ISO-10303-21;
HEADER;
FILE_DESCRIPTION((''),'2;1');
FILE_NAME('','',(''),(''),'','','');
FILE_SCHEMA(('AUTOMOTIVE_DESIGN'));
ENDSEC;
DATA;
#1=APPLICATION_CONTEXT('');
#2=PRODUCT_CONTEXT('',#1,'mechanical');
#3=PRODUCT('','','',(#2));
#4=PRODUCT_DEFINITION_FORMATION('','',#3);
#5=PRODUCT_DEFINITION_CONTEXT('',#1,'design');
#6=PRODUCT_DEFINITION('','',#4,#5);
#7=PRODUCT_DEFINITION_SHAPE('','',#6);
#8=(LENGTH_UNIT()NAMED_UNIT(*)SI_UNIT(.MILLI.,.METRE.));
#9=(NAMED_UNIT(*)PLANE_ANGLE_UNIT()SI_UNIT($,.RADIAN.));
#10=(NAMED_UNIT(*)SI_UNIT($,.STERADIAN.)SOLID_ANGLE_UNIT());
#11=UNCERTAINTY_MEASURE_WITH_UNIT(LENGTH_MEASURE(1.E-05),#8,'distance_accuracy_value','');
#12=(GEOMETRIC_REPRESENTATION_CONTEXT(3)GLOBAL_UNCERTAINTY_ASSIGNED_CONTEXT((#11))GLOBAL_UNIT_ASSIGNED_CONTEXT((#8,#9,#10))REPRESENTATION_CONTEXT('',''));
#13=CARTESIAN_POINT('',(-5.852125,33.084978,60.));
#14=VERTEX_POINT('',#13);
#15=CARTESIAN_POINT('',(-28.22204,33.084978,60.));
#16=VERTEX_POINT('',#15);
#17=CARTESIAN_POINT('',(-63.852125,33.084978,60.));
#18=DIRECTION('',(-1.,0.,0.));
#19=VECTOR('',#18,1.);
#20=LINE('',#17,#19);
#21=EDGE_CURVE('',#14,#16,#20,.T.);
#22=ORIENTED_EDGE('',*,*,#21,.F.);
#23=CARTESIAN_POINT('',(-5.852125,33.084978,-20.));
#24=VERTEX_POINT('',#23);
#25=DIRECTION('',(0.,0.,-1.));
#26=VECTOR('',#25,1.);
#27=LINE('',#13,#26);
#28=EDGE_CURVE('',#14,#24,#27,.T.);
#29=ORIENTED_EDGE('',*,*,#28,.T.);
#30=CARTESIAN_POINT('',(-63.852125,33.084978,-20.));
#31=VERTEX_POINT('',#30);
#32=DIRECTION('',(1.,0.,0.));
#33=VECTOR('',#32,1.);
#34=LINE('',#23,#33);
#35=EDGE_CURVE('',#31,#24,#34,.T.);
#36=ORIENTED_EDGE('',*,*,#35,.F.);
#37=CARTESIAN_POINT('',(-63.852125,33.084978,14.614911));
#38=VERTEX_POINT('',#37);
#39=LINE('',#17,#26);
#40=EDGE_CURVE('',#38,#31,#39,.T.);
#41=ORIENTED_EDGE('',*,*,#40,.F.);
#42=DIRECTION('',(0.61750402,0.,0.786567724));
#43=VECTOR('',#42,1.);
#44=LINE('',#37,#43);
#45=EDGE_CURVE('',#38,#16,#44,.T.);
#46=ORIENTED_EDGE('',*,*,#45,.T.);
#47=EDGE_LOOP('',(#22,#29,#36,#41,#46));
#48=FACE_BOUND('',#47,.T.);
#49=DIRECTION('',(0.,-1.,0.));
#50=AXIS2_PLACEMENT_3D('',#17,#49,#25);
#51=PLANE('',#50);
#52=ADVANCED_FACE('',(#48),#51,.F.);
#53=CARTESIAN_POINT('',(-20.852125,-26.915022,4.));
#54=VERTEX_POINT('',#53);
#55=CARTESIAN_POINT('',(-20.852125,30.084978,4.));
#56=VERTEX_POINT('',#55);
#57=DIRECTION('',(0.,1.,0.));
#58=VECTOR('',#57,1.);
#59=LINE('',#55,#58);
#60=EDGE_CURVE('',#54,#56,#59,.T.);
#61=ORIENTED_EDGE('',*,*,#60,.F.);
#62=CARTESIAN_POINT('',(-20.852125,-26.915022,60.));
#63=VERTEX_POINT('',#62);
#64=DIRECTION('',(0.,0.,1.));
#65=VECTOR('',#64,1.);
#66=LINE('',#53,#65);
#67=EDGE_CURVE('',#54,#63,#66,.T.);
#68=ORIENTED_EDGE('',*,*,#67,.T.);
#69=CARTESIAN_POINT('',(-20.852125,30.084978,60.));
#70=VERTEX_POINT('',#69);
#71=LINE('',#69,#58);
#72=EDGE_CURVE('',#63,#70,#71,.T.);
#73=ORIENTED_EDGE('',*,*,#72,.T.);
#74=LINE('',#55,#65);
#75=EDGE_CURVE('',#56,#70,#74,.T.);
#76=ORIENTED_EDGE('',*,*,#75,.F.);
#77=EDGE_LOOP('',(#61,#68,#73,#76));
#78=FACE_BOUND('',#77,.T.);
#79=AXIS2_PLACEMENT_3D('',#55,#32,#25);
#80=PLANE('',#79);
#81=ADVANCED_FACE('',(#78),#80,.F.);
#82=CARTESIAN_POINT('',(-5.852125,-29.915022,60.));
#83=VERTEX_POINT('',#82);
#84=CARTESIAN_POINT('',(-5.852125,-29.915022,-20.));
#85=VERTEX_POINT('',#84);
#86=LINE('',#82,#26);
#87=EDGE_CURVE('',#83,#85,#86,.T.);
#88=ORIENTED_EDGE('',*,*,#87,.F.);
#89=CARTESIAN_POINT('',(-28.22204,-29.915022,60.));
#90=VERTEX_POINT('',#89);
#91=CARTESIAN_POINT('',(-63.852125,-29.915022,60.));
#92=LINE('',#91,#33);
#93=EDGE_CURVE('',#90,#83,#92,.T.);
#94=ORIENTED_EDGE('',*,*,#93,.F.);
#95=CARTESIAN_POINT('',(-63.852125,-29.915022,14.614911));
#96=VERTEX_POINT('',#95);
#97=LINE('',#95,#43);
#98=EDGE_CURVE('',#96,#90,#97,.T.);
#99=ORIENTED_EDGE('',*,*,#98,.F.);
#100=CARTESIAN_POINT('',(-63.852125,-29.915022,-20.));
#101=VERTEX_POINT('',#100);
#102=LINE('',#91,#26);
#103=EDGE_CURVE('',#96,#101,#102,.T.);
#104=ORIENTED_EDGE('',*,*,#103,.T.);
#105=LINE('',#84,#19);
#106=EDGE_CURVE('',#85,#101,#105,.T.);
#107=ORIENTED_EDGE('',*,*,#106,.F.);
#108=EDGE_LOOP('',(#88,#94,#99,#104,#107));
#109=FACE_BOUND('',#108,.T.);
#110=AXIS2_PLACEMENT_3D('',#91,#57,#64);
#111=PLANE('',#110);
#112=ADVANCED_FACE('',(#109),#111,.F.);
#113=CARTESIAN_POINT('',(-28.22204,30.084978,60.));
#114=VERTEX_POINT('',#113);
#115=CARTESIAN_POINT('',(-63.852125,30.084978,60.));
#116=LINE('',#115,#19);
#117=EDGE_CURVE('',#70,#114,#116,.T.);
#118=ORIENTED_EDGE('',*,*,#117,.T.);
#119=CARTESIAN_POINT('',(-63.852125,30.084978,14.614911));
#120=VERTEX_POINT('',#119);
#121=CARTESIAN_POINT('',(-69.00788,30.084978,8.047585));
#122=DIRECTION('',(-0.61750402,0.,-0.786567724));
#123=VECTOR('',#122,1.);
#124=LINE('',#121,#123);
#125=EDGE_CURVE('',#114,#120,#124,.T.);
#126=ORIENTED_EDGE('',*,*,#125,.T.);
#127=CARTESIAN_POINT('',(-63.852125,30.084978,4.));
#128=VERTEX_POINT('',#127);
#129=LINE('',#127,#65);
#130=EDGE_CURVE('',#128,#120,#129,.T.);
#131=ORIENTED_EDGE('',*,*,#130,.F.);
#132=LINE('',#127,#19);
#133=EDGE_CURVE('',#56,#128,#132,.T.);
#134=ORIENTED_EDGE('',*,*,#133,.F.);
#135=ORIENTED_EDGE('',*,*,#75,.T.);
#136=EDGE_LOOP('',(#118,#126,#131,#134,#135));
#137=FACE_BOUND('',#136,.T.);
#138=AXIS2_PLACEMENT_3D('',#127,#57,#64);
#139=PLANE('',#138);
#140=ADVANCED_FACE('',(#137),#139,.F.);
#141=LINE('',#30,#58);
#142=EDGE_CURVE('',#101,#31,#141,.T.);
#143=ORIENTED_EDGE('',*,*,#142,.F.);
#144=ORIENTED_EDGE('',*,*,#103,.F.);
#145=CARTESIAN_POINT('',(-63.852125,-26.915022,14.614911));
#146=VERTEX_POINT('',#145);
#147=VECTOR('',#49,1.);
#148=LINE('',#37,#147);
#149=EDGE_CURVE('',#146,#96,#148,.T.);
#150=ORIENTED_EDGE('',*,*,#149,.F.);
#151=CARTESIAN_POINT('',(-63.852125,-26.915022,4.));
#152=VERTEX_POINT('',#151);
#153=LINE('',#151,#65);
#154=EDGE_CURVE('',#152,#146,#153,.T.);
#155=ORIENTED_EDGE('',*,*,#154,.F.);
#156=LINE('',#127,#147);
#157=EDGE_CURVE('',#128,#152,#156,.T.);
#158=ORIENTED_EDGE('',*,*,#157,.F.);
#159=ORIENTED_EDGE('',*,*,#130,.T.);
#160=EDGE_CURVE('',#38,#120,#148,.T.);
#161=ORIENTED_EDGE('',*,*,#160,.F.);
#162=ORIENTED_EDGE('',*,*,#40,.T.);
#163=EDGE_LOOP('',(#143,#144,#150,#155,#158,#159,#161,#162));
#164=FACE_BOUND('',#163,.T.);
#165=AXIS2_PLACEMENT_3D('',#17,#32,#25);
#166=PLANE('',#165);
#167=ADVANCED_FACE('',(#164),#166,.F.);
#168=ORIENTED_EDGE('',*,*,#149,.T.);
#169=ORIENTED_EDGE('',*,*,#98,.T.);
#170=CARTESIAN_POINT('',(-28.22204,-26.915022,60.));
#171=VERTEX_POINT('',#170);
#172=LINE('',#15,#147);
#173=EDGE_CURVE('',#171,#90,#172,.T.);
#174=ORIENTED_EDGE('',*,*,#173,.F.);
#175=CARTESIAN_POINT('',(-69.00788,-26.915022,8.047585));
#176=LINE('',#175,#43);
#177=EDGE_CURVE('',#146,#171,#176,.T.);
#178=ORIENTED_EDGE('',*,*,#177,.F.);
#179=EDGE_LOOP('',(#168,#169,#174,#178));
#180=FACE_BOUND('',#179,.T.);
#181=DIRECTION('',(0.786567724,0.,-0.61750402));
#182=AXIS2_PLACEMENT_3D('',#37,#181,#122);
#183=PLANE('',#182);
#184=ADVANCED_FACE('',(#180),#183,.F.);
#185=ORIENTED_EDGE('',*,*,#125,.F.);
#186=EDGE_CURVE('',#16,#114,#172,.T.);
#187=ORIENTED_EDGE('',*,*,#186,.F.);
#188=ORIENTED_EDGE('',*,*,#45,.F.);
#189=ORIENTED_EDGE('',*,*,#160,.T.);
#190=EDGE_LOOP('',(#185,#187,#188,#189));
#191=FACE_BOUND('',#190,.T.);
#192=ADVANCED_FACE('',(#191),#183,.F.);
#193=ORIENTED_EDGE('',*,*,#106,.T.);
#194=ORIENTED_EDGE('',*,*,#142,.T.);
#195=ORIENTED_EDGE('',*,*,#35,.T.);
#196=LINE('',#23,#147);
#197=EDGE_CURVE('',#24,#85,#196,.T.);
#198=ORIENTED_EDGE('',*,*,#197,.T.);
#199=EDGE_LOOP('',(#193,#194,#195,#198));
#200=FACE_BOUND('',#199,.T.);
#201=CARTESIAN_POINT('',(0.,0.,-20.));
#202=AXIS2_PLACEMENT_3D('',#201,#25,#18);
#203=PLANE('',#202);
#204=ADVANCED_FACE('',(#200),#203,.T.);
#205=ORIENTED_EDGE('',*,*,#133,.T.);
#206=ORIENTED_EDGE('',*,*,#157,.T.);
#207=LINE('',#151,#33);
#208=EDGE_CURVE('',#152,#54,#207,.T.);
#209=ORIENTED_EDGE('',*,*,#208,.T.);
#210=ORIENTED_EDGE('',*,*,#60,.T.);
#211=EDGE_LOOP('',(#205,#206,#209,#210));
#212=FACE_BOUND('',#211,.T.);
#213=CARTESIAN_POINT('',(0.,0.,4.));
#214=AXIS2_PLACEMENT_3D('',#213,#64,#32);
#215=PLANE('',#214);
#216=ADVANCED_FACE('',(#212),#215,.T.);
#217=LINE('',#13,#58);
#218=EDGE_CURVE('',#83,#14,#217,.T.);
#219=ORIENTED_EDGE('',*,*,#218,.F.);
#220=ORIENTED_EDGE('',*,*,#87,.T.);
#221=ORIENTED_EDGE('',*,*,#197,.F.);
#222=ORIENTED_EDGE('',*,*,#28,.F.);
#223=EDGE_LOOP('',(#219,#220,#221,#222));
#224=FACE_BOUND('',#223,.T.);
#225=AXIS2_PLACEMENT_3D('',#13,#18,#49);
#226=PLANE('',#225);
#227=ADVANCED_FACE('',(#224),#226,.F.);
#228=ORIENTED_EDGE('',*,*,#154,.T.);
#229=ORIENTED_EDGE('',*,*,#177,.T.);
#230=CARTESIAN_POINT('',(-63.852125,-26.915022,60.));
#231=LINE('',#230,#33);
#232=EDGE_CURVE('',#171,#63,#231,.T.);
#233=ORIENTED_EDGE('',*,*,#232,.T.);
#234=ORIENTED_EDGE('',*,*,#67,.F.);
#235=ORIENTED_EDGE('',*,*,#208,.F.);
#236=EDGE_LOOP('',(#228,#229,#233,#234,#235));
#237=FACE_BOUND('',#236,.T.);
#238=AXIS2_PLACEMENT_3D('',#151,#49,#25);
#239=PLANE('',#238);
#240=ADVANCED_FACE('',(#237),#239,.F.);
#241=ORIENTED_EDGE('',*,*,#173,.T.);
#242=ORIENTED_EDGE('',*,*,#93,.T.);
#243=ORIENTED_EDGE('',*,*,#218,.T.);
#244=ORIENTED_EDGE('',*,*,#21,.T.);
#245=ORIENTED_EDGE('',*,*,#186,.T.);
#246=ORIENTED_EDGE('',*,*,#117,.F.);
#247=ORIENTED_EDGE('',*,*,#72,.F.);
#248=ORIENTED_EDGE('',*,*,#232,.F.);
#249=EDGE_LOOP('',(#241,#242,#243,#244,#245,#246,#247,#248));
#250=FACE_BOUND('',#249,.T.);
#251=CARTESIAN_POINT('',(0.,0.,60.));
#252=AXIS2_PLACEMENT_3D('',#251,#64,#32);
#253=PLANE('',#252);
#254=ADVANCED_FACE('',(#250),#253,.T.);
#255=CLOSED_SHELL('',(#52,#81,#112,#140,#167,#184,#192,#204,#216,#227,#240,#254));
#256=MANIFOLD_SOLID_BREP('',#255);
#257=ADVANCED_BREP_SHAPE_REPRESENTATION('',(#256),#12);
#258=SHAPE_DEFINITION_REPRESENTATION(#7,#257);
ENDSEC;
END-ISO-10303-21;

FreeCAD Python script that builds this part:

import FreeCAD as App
import Part
import Sketcher

doc = App.newDocument("Part")
body = doc.addObject("PartDesign::Body", "Body")

sketch1 = body.newObject("Sketcher::SketchObject", "Sketch")
sketch1.AttachmentSupport = (doc.getObject("XY_Plane"), [""])
sketch1.MapMode = "FlatFace"
sketch1.addGeometry([
    Part.LineSegment(App.Vector(-64, 33, 0), App.Vector(-64, -30, 0)),
    Part.LineSegment(App.Vector(-64, -30, 0), App.Vector(-6, -30, 0)),
    Part.LineSegment(App.Vector(-6, -30, 0), App.Vector(-6, 33, 0)),
    Part.LineSegment(App.Vector(-6, 33, 0), App.Vector(-64, 33, 0)),
], False)
sketch1.addConstraint([
    Sketcher.Constraint("Coincident", 0, 2, 1, 1),
    Sketcher.Constraint("Coincident", 1, 2, 2, 1),
    Sketcher.Constraint("Coincident", 2, 2, 3, 1),
    Sketcher.Constraint("Coincident", 3, 2, 0, 1),
    Sketcher.Constraint("Vertical", 0),
    Sketcher.Constraint("Horizontal", 1),
    Sketcher.Constraint("Vertical", 2),
    Sketcher.Constraint("Horizontal", 3),
    Sketcher.Constraint("DistanceX", 1, 1, 1, 2, 58.0),
    Sketcher.Constraint("DistanceY", 0, 2, 0, 1, 63.0),
    Sketcher.Constraint("DistanceY", 0, 2, -1, 1, 29.915022),
    Sketcher.Constraint("DistanceX", 0, 2, -1, 1, 63.852125),
])
pad1 = body.newObject("PartDesign::Pad", "Pad")
pad1.Profile = sketch1
pad1.Length = 60

sketch2 = body.newObject("Sketcher::SketchObject", "Sketch001")
sketch2.AttachmentSupport = (doc.getObject("XY_Plane"), [""])
sketch2.MapMode = "FlatFace"
sketch2.AttachmentOffset = App.Placement(App.Vector(0, 0, 60), App.Rotation())
sketch2.addGeometry([
    Part.LineSegment(App.Vector(-64, 30, 0), App.Vector(-64, -27, 0)),
    Part.LineSegment(App.Vector(-64, -27, 0), App.Vector(-21, -27, 0)),
    Part.LineSegment(App.Vector(-21, -27, 0), App.Vector(-21, 30, 0)),
    Part.LineSegment(App.Vector(-21, 30, 0), App.Vector(-64, 30, 0)),
], False)
sketch2.addConstraint([
    Sketcher.Constraint("Coincident", 0, 2, 1, 1),
    Sketcher.Constraint("Coincident", 1, 2, 2, 1),
    Sketcher.Constraint("Coincident", 2, 2, 3, 1),
    Sketcher.Constraint("Coincident", 3, 2, 0, 1),
    Sketcher.Constraint("Vertical", 0),
    Sketcher.Constraint("Horizontal", 1),
    Sketcher.Constraint("Vertical", 2),
    Sketcher.Constraint("Horizontal", 3),
    Sketcher.Constraint("DistanceX", 1, 1, 1, 2, 43.0),
    Sketcher.Constraint("DistanceY", 0, 2, 0, 1, 57.0),
    Sketcher.Constraint("DistanceY", 0, 2, -1, 1, 26.915022),
    Sketcher.Constraint("DistanceX", 0, 2, -1, 1, 63.852125),
])
pocket1 = body.newObject("PartDesign::Pocket", "Pocket")
pocket1.Profile = sketch2
pocket1.Length = 56

sketch3 = body.newObject("Sketcher::SketchObject", "Sketch002")
sketch3.AttachmentSupport = (doc.getObject("XZ_Plane"), [""])
sketch3.MapMode = "FlatFace"
sketch3.AttachmentOffset = App.Placement(App.Vector(0, 0, 29.915022), App.Rotation())
sketch3.addGeometry([
    Part.LineSegment(App.Vector(-64, 60, 0), App.Vector(-64, 15, 0)),
    Part.LineSegment(App.Vector(-64, 15, 0), App.Vector(-28, 60, 0)),
    Part.LineSegment(App.Vector(-28, 60, 0), App.Vector(-64, 60, 0)),
], False)
sketch3.addConstraint([
    Sketcher.Constraint("Coincident", 0, 2, 1, 1),
    Sketcher.Constraint("Coincident", 1, 2, 2, 1),
    Sketcher.Constraint("Coincident", 2, 2, 0, 1),
    Sketcher.Constraint("Vertical", 0),
    Sketcher.Constraint("Horizontal", 2),
    Sketcher.Constraint("DistanceY", -1, 1, 1, 2, 60.0),
    Sketcher.Constraint("DistanceY", 0, 2, 0, 1, 45.385089),
    Sketcher.Constraint("DistanceX", 2, 2, 2, 1, 35.630085),
    Sketcher.Constraint("DistanceX", 1, 2, -1, 1, 28.22204),
])
pocket2 = body.newObject("PartDesign::Pocket", "Pocket001")
pocket2.Profile = sketch3
pocket2.Type = "ThroughAll"

sketch4 = body.newObject("Sketcher::SketchObject", "Sketch003")
sketch4.AttachmentSupport = (doc.getObject("XY_Plane"), [""])
sketch4.MapMode = "FlatFace"
sketch4.addGeometry([
    Part.LineSegment(App.Vector(-6, 33, 0), App.Vector(-6, -30, 0)),
    Part.LineSegment(App.Vector(-6, -30, 0), App.Vector(-64, -30, 0)),
    Part.LineSegment(App.Vector(-64, -30, 0), App.Vector(-64, 33, 0)),
    Part.LineSegment(App.Vector(-64, 33, 0), App.Vector(-6, 33, 0)),
], False)
sketch4.addConstraint([
    Sketcher.Constraint("Coincident", 0, 2, 1, 1),
    Sketcher.Constraint("Coincident", 1, 2, 2, 1),
    Sketcher.Constraint("Coincident", 2, 2, 3, 1),
    Sketcher.Constraint("Coincident", 3, 2, 0, 1),
    Sketcher.Constraint("Vertical", 0),
    Sketcher.Constraint("Horizontal", 1),
    Sketcher.Constraint("Vertical", 2),
    Sketcher.Constraint("Horizontal", 3),
    Sketcher.Constraint("DistanceX", 1, 2, 1, 1, 58.0),
    Sketcher.Constraint("DistanceY", 0, 2, 0, 1, 63.0),
    Sketcher.Constraint("DistanceY", 0, 2, -1, 1, 29.915022),
    Sketcher.Constraint("DistanceX", 0, 2, -1, 1, 5.852125),
])
pad2 = body.newObject("PartDesign::Pad", "Pad001")
pad2.Profile = sketch4
pad2.Length = 20
pad2.Reversed = True

doc.recompute()
